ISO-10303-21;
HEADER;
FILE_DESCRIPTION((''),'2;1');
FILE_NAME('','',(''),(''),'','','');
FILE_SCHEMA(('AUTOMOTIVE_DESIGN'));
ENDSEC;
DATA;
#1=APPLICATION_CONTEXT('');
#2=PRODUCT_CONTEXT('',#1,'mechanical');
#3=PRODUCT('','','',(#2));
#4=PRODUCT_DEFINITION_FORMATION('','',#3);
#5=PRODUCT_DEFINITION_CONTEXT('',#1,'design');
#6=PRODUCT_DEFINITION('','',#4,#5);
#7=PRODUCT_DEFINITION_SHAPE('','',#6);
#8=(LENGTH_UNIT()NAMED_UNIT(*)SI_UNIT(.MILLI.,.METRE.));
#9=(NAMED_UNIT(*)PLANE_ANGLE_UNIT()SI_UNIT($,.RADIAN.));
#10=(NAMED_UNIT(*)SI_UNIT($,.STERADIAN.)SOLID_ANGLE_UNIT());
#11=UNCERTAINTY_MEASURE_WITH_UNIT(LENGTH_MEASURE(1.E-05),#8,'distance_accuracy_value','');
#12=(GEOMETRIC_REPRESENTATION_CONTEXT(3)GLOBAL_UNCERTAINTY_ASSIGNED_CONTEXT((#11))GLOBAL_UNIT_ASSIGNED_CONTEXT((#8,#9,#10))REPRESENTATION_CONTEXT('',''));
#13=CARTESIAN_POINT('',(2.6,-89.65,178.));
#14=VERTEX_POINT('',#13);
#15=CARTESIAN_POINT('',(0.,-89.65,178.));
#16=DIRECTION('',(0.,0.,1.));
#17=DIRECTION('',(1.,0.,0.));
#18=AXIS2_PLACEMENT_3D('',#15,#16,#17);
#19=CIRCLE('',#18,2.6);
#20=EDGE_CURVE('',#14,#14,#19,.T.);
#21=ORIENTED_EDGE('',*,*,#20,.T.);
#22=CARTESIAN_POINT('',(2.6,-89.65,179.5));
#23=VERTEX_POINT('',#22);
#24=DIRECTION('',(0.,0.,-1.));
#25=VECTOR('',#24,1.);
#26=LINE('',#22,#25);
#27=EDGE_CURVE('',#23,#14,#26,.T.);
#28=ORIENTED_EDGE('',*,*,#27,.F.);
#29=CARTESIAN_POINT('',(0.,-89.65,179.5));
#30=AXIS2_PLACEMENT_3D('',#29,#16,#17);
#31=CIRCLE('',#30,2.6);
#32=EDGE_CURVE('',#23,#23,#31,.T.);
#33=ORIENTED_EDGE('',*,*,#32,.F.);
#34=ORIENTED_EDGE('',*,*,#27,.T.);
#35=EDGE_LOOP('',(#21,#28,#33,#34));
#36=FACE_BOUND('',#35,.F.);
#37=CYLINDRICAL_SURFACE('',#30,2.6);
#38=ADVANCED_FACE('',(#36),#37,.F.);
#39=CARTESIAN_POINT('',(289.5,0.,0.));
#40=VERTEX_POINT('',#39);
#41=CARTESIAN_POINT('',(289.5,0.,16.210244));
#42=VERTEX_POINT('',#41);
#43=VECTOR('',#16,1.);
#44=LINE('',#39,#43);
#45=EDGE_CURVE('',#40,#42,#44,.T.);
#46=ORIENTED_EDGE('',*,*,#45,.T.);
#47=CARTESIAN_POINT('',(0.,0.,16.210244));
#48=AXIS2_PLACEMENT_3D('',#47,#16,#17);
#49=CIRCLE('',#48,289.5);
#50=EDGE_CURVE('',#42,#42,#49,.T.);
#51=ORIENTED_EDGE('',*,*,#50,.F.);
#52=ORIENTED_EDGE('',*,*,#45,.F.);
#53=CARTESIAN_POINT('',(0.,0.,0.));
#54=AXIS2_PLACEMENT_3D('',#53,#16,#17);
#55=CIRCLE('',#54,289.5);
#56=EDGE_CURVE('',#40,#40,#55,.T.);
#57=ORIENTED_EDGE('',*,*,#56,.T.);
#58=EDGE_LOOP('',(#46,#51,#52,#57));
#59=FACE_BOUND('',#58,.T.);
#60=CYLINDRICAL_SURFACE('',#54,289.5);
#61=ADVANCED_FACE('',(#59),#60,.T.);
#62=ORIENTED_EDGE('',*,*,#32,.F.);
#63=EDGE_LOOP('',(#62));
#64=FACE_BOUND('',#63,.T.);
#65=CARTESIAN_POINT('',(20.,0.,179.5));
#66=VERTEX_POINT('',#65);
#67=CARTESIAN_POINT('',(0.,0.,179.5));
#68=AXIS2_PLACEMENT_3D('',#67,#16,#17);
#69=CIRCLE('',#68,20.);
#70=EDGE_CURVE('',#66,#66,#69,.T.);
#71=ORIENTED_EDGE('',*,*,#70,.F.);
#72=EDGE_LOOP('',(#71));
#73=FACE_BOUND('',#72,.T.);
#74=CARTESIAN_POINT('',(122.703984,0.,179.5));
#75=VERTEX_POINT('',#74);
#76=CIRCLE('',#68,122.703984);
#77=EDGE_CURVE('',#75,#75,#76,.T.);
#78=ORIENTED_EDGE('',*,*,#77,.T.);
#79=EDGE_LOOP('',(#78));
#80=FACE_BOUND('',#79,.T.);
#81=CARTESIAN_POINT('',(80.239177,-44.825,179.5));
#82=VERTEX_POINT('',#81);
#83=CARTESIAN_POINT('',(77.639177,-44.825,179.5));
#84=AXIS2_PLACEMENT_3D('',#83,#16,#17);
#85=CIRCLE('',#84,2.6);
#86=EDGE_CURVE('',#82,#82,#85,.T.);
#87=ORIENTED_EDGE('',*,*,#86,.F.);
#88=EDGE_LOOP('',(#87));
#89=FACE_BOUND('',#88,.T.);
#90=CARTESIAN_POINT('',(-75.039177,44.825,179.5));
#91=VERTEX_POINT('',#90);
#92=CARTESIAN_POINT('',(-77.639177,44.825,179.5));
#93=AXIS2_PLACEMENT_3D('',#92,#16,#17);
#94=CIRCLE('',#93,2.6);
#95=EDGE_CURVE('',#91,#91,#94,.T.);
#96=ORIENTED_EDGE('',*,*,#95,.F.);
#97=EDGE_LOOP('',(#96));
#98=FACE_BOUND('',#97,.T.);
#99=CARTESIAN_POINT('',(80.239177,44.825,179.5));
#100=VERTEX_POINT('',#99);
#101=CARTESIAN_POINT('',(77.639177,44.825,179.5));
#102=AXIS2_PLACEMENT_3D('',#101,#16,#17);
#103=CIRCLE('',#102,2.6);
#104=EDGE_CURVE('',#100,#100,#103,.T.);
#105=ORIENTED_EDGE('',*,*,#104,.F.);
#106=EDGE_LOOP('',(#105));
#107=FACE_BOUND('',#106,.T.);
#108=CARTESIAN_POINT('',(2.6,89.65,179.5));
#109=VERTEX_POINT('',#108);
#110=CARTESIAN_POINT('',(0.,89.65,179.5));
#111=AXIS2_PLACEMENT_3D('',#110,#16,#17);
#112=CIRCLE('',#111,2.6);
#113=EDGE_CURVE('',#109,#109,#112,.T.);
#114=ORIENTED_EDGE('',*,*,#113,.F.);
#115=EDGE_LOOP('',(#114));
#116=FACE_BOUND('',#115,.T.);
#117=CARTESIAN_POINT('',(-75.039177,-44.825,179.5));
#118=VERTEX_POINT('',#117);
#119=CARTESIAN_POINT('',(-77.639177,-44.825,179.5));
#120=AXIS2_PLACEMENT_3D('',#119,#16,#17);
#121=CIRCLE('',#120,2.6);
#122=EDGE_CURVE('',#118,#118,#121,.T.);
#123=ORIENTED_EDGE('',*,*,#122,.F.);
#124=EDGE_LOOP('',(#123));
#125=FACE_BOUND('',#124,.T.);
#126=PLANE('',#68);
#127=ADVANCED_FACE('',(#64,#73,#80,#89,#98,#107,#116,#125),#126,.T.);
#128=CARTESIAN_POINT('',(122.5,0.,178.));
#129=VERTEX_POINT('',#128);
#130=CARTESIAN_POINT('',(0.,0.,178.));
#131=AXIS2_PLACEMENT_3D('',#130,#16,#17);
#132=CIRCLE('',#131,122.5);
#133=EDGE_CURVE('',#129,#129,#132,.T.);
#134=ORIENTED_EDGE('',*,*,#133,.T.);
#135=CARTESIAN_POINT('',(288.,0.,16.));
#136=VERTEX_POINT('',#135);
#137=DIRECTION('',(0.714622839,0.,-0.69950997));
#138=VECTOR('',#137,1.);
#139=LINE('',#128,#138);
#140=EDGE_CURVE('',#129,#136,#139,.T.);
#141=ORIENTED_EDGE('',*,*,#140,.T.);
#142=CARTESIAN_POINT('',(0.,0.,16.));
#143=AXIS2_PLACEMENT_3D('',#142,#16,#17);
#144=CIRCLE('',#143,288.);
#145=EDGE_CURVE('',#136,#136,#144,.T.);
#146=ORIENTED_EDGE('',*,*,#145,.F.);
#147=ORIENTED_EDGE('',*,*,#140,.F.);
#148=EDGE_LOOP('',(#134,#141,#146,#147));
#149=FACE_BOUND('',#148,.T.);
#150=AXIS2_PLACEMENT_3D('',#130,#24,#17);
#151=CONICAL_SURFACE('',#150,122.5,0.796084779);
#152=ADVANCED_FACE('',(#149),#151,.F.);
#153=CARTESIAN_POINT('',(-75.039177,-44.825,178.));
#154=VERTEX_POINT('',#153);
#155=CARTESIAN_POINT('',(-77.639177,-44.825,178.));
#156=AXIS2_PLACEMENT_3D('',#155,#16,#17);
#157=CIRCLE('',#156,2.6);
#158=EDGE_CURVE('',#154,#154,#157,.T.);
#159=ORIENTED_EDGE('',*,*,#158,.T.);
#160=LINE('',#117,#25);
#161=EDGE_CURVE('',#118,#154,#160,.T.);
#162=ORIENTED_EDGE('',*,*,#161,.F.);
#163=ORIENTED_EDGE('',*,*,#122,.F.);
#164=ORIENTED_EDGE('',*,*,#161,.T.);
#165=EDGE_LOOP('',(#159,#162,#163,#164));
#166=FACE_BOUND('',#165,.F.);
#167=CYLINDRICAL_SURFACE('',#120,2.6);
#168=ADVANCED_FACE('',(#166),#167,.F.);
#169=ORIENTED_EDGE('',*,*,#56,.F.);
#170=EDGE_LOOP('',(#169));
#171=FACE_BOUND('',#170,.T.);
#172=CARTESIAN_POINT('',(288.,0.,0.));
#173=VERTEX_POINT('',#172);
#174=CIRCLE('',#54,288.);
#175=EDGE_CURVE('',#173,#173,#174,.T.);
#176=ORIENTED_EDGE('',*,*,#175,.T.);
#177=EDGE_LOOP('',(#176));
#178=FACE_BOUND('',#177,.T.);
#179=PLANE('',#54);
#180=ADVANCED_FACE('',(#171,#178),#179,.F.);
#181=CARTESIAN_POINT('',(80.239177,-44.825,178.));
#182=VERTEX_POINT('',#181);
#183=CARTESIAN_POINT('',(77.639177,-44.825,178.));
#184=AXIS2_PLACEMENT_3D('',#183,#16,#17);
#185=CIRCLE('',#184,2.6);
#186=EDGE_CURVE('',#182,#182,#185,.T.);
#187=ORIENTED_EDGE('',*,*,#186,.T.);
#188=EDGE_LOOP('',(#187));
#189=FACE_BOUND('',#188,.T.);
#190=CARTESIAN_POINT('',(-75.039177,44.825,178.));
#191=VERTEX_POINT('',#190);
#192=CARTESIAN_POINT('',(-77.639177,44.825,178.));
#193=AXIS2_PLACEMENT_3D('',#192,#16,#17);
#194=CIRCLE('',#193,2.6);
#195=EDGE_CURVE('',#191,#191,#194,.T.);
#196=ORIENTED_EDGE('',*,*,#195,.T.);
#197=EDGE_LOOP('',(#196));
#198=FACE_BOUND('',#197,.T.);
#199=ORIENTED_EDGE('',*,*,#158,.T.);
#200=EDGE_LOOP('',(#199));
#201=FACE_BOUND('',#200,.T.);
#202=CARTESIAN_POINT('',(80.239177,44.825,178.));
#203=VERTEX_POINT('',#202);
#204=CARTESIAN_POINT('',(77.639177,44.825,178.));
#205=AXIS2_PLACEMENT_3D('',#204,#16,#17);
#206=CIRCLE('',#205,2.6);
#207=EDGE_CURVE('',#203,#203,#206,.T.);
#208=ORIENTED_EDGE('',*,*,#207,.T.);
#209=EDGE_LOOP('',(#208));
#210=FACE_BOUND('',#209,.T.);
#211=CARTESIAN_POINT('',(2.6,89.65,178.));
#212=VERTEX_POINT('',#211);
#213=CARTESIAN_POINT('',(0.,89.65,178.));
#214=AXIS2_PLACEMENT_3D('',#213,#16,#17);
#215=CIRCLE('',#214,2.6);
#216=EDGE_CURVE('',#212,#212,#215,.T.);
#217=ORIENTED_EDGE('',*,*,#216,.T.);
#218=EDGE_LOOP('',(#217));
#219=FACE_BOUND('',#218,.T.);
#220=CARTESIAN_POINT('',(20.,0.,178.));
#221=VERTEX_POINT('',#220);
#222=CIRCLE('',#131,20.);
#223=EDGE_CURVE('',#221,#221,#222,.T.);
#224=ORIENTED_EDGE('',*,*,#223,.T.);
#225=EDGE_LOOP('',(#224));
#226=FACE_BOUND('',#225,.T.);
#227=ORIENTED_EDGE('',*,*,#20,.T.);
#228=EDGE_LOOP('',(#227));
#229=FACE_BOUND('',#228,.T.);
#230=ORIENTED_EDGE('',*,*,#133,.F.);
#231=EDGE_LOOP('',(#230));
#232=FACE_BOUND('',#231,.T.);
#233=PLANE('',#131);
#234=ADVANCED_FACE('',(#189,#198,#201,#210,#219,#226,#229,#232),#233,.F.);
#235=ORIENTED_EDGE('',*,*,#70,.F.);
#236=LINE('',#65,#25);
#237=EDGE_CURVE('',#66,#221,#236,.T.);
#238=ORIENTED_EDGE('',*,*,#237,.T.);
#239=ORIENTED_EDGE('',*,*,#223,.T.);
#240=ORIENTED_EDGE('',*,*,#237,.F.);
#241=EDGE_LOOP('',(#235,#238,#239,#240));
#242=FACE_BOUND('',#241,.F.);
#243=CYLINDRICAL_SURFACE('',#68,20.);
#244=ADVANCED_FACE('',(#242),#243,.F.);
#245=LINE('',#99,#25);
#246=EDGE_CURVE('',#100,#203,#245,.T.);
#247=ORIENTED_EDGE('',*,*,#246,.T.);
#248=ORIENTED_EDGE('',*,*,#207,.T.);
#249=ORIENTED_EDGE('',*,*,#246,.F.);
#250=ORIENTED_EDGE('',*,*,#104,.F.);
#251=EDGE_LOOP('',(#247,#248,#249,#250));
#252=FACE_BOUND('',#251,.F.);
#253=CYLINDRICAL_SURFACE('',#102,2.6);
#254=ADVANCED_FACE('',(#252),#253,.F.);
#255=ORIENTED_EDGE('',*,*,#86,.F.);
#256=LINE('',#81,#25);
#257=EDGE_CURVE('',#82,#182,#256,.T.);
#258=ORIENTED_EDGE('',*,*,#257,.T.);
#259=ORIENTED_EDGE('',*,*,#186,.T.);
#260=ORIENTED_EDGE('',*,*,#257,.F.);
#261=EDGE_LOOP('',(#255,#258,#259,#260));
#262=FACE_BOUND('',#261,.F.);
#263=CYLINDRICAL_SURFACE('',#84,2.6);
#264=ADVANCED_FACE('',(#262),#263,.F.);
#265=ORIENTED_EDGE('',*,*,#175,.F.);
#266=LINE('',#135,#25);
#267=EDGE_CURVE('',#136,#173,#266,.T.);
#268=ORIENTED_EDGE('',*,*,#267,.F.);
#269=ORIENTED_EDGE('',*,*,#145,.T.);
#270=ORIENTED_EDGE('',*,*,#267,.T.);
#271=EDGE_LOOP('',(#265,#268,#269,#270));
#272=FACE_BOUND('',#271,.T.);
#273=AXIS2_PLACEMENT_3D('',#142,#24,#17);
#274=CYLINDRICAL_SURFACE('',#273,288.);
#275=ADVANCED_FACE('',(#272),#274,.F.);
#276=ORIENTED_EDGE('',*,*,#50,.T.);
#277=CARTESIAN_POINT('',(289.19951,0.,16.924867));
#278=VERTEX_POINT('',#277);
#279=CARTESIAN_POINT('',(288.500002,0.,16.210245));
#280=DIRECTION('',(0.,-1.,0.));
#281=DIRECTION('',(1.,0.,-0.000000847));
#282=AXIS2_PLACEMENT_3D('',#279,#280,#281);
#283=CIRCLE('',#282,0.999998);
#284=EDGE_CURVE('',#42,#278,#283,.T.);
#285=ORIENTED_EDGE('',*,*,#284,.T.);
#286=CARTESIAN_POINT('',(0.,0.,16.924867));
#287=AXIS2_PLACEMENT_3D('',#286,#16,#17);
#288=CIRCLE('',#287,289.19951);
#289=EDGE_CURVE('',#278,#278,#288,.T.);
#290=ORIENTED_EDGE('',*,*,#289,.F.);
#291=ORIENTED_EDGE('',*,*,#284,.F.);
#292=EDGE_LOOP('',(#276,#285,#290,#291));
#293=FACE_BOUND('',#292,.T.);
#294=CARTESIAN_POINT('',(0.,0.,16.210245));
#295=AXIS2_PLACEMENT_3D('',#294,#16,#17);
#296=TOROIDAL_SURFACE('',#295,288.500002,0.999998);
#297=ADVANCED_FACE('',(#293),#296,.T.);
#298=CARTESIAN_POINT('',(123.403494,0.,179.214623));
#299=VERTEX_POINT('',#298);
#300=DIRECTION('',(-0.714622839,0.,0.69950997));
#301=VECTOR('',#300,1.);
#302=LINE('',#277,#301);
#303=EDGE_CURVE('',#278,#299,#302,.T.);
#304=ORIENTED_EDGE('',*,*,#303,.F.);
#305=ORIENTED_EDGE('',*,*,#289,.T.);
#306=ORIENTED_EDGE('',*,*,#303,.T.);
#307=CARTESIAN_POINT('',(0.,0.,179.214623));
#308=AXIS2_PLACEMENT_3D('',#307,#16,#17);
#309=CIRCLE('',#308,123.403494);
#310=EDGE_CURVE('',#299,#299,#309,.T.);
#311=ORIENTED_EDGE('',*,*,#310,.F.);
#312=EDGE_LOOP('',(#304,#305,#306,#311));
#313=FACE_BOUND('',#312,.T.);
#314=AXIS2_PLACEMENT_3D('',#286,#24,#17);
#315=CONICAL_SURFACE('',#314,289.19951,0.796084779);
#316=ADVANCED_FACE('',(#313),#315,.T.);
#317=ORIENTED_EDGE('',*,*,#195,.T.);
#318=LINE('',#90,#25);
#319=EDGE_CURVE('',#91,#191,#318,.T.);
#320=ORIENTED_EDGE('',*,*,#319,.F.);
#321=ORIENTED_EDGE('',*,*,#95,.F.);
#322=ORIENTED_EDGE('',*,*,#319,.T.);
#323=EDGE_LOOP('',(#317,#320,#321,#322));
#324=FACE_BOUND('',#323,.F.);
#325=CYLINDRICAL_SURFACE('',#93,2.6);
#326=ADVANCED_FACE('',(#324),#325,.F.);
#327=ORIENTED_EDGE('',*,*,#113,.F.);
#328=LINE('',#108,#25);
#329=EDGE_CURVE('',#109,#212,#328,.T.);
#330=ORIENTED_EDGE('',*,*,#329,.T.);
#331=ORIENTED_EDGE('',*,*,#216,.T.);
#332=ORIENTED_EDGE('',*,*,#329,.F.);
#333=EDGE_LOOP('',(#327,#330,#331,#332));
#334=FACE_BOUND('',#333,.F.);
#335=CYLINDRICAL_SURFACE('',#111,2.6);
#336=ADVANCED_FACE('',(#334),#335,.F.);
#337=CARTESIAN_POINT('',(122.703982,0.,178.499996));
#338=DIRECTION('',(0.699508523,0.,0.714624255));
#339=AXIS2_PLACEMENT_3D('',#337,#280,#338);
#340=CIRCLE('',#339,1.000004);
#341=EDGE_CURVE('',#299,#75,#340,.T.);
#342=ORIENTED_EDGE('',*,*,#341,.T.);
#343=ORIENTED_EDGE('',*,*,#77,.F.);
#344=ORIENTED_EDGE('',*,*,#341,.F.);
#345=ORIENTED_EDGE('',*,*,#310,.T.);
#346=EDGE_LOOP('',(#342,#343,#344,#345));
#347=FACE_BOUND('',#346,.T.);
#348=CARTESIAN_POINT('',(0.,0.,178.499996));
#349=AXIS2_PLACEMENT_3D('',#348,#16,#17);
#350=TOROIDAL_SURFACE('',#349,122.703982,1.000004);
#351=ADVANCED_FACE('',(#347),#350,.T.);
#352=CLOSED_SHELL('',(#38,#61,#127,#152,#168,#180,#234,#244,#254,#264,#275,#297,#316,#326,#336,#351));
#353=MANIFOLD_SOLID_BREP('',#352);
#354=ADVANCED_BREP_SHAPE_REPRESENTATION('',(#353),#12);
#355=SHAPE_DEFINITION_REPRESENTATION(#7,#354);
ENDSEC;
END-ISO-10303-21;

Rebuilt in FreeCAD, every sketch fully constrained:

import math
import FreeCAD as App
import Part
import Sketcher

V = App.Vector
Q = App.Units.Quantity

doc = App.newDocument("Part")
body = doc.addObject("PartDesign::Body", "Body")

# Sketch on XZ plane
sketch1 = doc.addObject("Sketcher::SketchObject", "Sketch")
body.addObject(sketch1)
sketch1.AttachmentSupport = (doc.XZ_Plane, [""])
sketch1.MapMode = "FlatFace"
sketch1.addGeometry([
    Part.LineSegment(V(288, 16, 0), V(288, 0, 0)),  # 0
    Part.LineSegment(V(288, 0, 0), V(289.5, 0, 0)),  # 1
    Part.LineSegment(V(289.5, 0, 0), V(289.5, 16.2, 0)),  # 2
    Part.ArcOfCircle(Part.Circle(V(288.5, 16.2, 0), V(0, 0, 1), 1), math.radians(0), math.radians(46)),  # 3
    Part.LineSegment(V(289.2, 16.9, 0), V(123.4, 179.2, 0)),  # 4
    Part.ArcOfCircle(Part.Circle(V(122.7, 178.5, 0), V(0, 0, 1), 1), math.radians(46), math.radians(90)),  # 5
    Part.LineSegment(V(122.7, 179.5, 0), V(0, 179.5, 0)),  # 6
    Part.LineSegment(V(0, 179.5, 0), V(0, 178, 0)),  # 7
    Part.LineSegment(V(0, 178, 0), V(122.5, 178, 0)),  # 8
    Part.LineSegment(V(122.5, 178, 0), V(288, 16, 0)),  # 9
], False)
sketch1.addConstraint([
    Sketcher.Constraint("Coincident", 0, 2, 1, 1),
    Sketcher.Constraint("Coincident", 1, 2, 2, 1),
    Sketcher.Constraint("Tangent", 2, 2, 3, 1),
    Sketcher.Constraint("Tangent", 3, 2, 4, 1),
    Sketcher.Constraint("Coincident", 4, 2, 5, 1),
    Sketcher.Constraint("Tangent", 5, 2, 6, 1),
    Sketcher.Constraint("Coincident", 6, 2, 7, 1),
    Sketcher.Constraint("Coincident", 7, 2, 8, 1),
    Sketcher.Constraint("Coincident", 8, 2, 9, 1),
    Sketcher.Constraint("Coincident", 9, 2, 0, 1),
    Sketcher.Constraint("Vertical", 0),
    Sketcher.Constraint("Horizontal", 1),
    Sketcher.Constraint("Vertical", 2),
    Sketcher.Constraint("Horizontal", 6),
    Sketcher.Constraint("Vertical", 7),
    Sketcher.Constraint("Horizontal", 8),
    Sketcher.Constraint("PointOnObject", 0, 2, -1),
    Sketcher.Constraint("PointOnObject", 6, 2, -2),
    Sketcher.Constraint("Parallel", 4, 9),
    Sketcher.Constraint("Equal", 1, 7),
    Sketcher.Constraint("Radius", 3, Q("0.999998 mm")),
    Sketcher.Constraint("DistanceY", 0, 2, 0, 1, Q("16 mm")),
    Sketcher.Constraint("DistanceX", 1, 1, 1, 2, Q("1.5 mm")),
    Sketcher.Constraint("DistanceX", 8, 1, 8, 2, Q("122.5 mm")),
    Sketcher.Constraint("DistanceX", -1, 1, 0, 2, Q("288 mm")),
    Sketcher.Constraint("DistanceY", -1, 1, 7, 2, Q("178 mm")),
    Sketcher.Constraint("Radius", 5, Q("1.000004 mm")),
    Sketcher.Constraint("Distance", 4, Q("232.004922 mm")),
    Sketcher.Constraint("DistanceX", 6, 2, 6, 1, Q("122.703984 mm")),
])
revolution = doc.addObject("PartDesign::Revolution", "Revolution")
body.addObject(revolution)
revolution.Profile = sketch1
revolution.ReferenceAxis = (sketch1, ["V_Axis"])
revolution.Angle = 360

# Sketch on XY plane
sketch2 = doc.addObject("Sketcher::SketchObject", "Sketch001")
body.addObject(sketch2)
sketch2.AttachmentSupport = (doc.XY_Plane, [""])
sketch2.MapMode = "FlatFace"
sketch2.AttachmentOffset = App.Placement(V(0, 0, 179.5), App.Rotation())
sketch2.addGeometry(Part.Circle(V(0, 0, 0), V(0, 0, 1), 5), False)
sketch2.addConstraint([
    Sketcher.Constraint("Coincident", 0, 3, -1, 1),
    Sketcher.Constraint("Diameter", 0, Q("10 mm")),
])
pocket1 = doc.addObject("PartDesign::Pocket", "Pocket")
body.addObject(pocket1)
pocket1.Profile = sketch2
pocket1.Type = "ThroughAll"

# Sketch on XY plane
sketch3 = doc.addObject("Sketcher::SketchObject", "Sketch002")
body.addObject(sketch3)
sketch3.AttachmentSupport = (doc.XY_Plane, [""])
sketch3.MapMode = "FlatFace"
sketch3.AttachmentOffset = App.Placement(V(0, 0, 179.5), App.Rotation())
sketch3.addGeometry(Part.Circle(V(0, 0, 0), V(0, 0, 1), 20), False)
sketch3.addConstraint([
    Sketcher.Constraint("Coincident", 0, 3, -1, 1),
    Sketcher.Constraint("Diameter", 0, Q("40 mm")),
])
pocket2 = doc.addObject("PartDesign::Pocket", "Pocket001")
body.addObject(pocket2)
pocket2.Profile = sketch3
pocket2.Type = "ThroughAll"

# Sketch on XY plane
sketch4 = doc.addObject("Sketcher::SketchObject", "Sketch003")
body.addObject(sketch4)
sketch4.AttachmentSupport = (doc.XY_Plane, [""])
sketch4.MapMode = "FlatFace"
sketch4.AttachmentOffset = App.Placement(V(0, 0, 179.5), App.Rotation())
sketch4.addGeometry([
    Part.Circle(V(0, 89.7, 0), V(0, 0, 1), 2.6),  # 0
    Part.Circle(V(-77.6, 44.8, 0), V(0, 0, 1), 2.6),  # 1
    Part.Circle(V(-77.6, -44.8, 0), V(0, 0, 1), 2.6),  # 2
    Part.Circle(V(0, -89.7, 0), V(0, 0, 1), 2.6),  # 3
    Part.Circle(V(77.6, -44.8, 0), V(0, 0, 1), 2.6),  # 4
    Part.Circle(V(77.6, 44.8, 0), V(0, 0, 1), 2.6),  # 5
], False)
sketch4.addConstraint([
    Sketcher.Constraint("Equal", 0, 1),
    Sketcher.Constraint("Equal", 1, 2),
    Sketcher.Constraint("Equal", 2, 3),
    Sketcher.Constraint("Equal", 3, 4),
    Sketcher.Constraint("Equal", 4, 5),
    Sketcher.Constraint("Symmetric", 0, 3, 3, 3, -1, 1),
    Sketcher.Constraint("Symmetric", 1, 3, 4, 3, -1, 1),
    Sketcher.Constraint("Symmetric", 2, 3, 5, 3, -1, 1),
    Sketcher.Constraint("Symmetric", 2, 3, 4, 3, -2),
    Sketcher.Constraint("PointOnObject", 0, 3, -2),
    Sketcher.Constraint("Diameter", 0, Q("5.2 mm")),
    Sketcher.Constraint("DistanceY", 3, 3, 0, 3, Q("179.3 mm")),
    Sketcher.Constraint("DistanceY", 2, 3, 1, 3, Q("89.65 mm")),
    Sketcher.Constraint("DistanceX", 1, 3, -1, 1, Q("77.639177 mm")),
])
pocket3 = doc.addObject("PartDesign::Pocket", "Pocket002")
body.addObject(pocket3)
pocket3.Profile = sketch4
pocket3.Type = "ThroughAll"

doc.recompute()
